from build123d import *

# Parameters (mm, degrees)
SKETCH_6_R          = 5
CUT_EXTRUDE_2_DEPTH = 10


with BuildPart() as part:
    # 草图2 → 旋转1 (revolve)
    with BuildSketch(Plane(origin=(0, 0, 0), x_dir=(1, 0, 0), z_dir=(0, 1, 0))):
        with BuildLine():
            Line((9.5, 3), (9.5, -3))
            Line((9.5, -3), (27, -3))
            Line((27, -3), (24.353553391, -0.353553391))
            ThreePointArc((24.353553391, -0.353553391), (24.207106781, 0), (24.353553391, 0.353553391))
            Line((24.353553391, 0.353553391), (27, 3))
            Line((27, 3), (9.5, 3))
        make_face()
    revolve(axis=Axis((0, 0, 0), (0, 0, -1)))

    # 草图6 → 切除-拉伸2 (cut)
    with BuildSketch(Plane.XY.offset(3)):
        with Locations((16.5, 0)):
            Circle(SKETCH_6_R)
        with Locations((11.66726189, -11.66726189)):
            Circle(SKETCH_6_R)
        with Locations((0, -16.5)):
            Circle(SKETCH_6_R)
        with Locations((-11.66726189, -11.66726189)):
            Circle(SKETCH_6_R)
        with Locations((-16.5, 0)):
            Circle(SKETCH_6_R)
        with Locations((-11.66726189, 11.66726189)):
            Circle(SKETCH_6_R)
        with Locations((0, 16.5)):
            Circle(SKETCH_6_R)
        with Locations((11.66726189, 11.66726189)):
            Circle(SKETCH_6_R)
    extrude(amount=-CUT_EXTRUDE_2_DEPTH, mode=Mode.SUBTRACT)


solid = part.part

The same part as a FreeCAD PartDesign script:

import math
import FreeCAD as App
import Part
import Sketcher
from FreeCAD import Vector
Q = App.Units.Quantity

doc = App.newDocument("Part")
body = doc.addObject("PartDesign::Body", "Body")

sketch1 = body.newObject("Sketcher::SketchObject", "Sketch")
sketch1.AttachmentSupport = (doc.getObject("XZ_Plane"), [""])
sketch1.MapMode = "FlatFace"
sketch1.addGeometry([
    Part.LineSegment(Vector(9.5, -3, 0), Vector(9.5, 3, 0)),
    Part.LineSegment(Vector(9.5, 3, 0), Vector(27, 3, 0)),
    Part.LineSegment(Vector(27, 3, 0), Vector(24.4, 0.4, 0)),
    Part.ArcOfCircle(Part.Circle(Vector(24.7, 0, 0), Vector(0, 0, 1), 0.5), math.radians(135), math.radians(225)),
    Part.LineSegment(Vector(24.4, -0.4, 0), Vector(27, -3, 0)),
    Part.LineSegment(Vector(27, -3, 0), Vector(9.5, -3, 0)),
], False)
sketch1.addConstraint([
    Sketcher.Constraint("Coincident", 0, 2, 1, 1),
    Sketcher.Constraint("Coincident", 1, 2, 2, 1),
    Sketcher.Constraint("Tangent", 2, 2, 3, 1),
    Sketcher.Constraint("Tangent", 3, 2, 4, 1),
    Sketcher.Constraint("Coincident", 4, 2, 5, 1),
    Sketcher.Constraint("Coincident", 5, 2, 0, 1),
    Sketcher.Constraint("Vertical", 0),
    Sketcher.Constraint("Horizontal", 1),
    Sketcher.Constraint("Horizontal", 5),
    Sketcher.Constraint("Symmetric", 2, 2, 3, 2, -1),
    Sketcher.Constraint("Perpendicular", 2, 4),
    Sketcher.Constraint("Vertical", 1, 2, 4, 2),
    Sketcher.Constraint("Radius", 3, Q("0.5 mm")),
    Sketcher.Constraint("DistanceY", 0, 1, 0, 2, Q("6 mm")),
    Sketcher.Constraint("DistanceX", 1, 1, 1, 2, Q("17.5 mm")),
    Sketcher.Constraint("DistanceX", -1, 1, 1, 2, Q("27 mm")),
])
revolution = body.newObject("PartDesign::Revolution", "Revolution")
revolution.Profile = sketch1
revolution.ReferenceAxis = (sketch1, ["V_Axis"])
revolution.Angle = 360

sketch2 = body.newObject("Sketcher::SketchObject", "Sketch001")
sketch2.AttachmentSupport = (doc.getObject("XY_Plane"), [""])
sketch2.MapMode = "FlatFace"
sketch2.AttachmentOffset = App.Placement(Vector(0, 0, 3), App.Rotation())
sketch2.addGeometry([
    Part.Circle(Vector(16, 0, 0), Vector(0, 0, 1), 5),
    Part.Circle(Vector(12, -12, 0), Vector(0, 0, 1), 5),
    Part.Circle(Vector(0, -16, 0), Vector(0, 0, 1), 5),
    Part.Circle(Vector(-12, -12, 0), Vector(0, 0, 1), 5),
    Part.Circle(Vector(-16, 0, 0), Vector(0, 0, 1), 5),
    Part.Circle(Vector(-12, 12, 0), Vector(0, 0, 1), 5),
    Part.Circle(Vector(0, 16, 0), Vector(0, 0, 1), 5),
    Part.Circle(Vector(12, 12, 0), Vector(0, 0, 1), 5),
], False)
sketch2.addConstraint([
    Sketcher.Constraint("Equal", 0, 1),
    Sketcher.Constraint("Equal", 1, 2),
    Sketcher.Constraint("Equal", 2, 3),
    Sketcher.Constraint("Equal", 3, 4),
    Sketcher.Constraint("Equal", 4, 5),
    Sketcher.Constraint("Equal", 5, 6),
    Sketcher.Constraint("Equal", 6, 7),
    Sketcher.Constraint("Symmetric", 0, 3, 4, 3, -1, 1),
    Sketcher.Constraint("Symmetric", 1, 3, 5, 3, -1, 1),
    Sketcher.Constraint("Symmetric", 2, 3, 6, 3, -1, 1),
    Sketcher.Constraint("Symmetric", 3, 3, 7, 3, -1, 1),
    Sketcher.Constraint("Symmetric", 1, 3, 3, 3, -2),
    Sketcher.Constraint("PointOnObject", 0, 3, -1),
    Sketcher.Constraint("PointOnObject", 2, 3, -2),
    Sketcher.Constraint("Diameter", 0, Q("10 mm")),
    Sketcher.Constraint("DistanceX", 4, 3, 0, 3, Q("33 mm")),
    Sketcher.Constraint("DistanceY", 2, 3, -1, 1, Q("16.5 mm")),
    Sketcher.Constraint("DistanceX", -1, 1, 1, 3, Q("11.667262 mm")),
    Sketcher.Constraint("DistanceY", 1, 3, -1, 1, Q("11.667262 mm")),
])
pocket1 = body.newObject("PartDesign::Pocket", "Pocket")
pocket1.Profile = sketch2
pocket1.Length = 10

doc.recompute()
